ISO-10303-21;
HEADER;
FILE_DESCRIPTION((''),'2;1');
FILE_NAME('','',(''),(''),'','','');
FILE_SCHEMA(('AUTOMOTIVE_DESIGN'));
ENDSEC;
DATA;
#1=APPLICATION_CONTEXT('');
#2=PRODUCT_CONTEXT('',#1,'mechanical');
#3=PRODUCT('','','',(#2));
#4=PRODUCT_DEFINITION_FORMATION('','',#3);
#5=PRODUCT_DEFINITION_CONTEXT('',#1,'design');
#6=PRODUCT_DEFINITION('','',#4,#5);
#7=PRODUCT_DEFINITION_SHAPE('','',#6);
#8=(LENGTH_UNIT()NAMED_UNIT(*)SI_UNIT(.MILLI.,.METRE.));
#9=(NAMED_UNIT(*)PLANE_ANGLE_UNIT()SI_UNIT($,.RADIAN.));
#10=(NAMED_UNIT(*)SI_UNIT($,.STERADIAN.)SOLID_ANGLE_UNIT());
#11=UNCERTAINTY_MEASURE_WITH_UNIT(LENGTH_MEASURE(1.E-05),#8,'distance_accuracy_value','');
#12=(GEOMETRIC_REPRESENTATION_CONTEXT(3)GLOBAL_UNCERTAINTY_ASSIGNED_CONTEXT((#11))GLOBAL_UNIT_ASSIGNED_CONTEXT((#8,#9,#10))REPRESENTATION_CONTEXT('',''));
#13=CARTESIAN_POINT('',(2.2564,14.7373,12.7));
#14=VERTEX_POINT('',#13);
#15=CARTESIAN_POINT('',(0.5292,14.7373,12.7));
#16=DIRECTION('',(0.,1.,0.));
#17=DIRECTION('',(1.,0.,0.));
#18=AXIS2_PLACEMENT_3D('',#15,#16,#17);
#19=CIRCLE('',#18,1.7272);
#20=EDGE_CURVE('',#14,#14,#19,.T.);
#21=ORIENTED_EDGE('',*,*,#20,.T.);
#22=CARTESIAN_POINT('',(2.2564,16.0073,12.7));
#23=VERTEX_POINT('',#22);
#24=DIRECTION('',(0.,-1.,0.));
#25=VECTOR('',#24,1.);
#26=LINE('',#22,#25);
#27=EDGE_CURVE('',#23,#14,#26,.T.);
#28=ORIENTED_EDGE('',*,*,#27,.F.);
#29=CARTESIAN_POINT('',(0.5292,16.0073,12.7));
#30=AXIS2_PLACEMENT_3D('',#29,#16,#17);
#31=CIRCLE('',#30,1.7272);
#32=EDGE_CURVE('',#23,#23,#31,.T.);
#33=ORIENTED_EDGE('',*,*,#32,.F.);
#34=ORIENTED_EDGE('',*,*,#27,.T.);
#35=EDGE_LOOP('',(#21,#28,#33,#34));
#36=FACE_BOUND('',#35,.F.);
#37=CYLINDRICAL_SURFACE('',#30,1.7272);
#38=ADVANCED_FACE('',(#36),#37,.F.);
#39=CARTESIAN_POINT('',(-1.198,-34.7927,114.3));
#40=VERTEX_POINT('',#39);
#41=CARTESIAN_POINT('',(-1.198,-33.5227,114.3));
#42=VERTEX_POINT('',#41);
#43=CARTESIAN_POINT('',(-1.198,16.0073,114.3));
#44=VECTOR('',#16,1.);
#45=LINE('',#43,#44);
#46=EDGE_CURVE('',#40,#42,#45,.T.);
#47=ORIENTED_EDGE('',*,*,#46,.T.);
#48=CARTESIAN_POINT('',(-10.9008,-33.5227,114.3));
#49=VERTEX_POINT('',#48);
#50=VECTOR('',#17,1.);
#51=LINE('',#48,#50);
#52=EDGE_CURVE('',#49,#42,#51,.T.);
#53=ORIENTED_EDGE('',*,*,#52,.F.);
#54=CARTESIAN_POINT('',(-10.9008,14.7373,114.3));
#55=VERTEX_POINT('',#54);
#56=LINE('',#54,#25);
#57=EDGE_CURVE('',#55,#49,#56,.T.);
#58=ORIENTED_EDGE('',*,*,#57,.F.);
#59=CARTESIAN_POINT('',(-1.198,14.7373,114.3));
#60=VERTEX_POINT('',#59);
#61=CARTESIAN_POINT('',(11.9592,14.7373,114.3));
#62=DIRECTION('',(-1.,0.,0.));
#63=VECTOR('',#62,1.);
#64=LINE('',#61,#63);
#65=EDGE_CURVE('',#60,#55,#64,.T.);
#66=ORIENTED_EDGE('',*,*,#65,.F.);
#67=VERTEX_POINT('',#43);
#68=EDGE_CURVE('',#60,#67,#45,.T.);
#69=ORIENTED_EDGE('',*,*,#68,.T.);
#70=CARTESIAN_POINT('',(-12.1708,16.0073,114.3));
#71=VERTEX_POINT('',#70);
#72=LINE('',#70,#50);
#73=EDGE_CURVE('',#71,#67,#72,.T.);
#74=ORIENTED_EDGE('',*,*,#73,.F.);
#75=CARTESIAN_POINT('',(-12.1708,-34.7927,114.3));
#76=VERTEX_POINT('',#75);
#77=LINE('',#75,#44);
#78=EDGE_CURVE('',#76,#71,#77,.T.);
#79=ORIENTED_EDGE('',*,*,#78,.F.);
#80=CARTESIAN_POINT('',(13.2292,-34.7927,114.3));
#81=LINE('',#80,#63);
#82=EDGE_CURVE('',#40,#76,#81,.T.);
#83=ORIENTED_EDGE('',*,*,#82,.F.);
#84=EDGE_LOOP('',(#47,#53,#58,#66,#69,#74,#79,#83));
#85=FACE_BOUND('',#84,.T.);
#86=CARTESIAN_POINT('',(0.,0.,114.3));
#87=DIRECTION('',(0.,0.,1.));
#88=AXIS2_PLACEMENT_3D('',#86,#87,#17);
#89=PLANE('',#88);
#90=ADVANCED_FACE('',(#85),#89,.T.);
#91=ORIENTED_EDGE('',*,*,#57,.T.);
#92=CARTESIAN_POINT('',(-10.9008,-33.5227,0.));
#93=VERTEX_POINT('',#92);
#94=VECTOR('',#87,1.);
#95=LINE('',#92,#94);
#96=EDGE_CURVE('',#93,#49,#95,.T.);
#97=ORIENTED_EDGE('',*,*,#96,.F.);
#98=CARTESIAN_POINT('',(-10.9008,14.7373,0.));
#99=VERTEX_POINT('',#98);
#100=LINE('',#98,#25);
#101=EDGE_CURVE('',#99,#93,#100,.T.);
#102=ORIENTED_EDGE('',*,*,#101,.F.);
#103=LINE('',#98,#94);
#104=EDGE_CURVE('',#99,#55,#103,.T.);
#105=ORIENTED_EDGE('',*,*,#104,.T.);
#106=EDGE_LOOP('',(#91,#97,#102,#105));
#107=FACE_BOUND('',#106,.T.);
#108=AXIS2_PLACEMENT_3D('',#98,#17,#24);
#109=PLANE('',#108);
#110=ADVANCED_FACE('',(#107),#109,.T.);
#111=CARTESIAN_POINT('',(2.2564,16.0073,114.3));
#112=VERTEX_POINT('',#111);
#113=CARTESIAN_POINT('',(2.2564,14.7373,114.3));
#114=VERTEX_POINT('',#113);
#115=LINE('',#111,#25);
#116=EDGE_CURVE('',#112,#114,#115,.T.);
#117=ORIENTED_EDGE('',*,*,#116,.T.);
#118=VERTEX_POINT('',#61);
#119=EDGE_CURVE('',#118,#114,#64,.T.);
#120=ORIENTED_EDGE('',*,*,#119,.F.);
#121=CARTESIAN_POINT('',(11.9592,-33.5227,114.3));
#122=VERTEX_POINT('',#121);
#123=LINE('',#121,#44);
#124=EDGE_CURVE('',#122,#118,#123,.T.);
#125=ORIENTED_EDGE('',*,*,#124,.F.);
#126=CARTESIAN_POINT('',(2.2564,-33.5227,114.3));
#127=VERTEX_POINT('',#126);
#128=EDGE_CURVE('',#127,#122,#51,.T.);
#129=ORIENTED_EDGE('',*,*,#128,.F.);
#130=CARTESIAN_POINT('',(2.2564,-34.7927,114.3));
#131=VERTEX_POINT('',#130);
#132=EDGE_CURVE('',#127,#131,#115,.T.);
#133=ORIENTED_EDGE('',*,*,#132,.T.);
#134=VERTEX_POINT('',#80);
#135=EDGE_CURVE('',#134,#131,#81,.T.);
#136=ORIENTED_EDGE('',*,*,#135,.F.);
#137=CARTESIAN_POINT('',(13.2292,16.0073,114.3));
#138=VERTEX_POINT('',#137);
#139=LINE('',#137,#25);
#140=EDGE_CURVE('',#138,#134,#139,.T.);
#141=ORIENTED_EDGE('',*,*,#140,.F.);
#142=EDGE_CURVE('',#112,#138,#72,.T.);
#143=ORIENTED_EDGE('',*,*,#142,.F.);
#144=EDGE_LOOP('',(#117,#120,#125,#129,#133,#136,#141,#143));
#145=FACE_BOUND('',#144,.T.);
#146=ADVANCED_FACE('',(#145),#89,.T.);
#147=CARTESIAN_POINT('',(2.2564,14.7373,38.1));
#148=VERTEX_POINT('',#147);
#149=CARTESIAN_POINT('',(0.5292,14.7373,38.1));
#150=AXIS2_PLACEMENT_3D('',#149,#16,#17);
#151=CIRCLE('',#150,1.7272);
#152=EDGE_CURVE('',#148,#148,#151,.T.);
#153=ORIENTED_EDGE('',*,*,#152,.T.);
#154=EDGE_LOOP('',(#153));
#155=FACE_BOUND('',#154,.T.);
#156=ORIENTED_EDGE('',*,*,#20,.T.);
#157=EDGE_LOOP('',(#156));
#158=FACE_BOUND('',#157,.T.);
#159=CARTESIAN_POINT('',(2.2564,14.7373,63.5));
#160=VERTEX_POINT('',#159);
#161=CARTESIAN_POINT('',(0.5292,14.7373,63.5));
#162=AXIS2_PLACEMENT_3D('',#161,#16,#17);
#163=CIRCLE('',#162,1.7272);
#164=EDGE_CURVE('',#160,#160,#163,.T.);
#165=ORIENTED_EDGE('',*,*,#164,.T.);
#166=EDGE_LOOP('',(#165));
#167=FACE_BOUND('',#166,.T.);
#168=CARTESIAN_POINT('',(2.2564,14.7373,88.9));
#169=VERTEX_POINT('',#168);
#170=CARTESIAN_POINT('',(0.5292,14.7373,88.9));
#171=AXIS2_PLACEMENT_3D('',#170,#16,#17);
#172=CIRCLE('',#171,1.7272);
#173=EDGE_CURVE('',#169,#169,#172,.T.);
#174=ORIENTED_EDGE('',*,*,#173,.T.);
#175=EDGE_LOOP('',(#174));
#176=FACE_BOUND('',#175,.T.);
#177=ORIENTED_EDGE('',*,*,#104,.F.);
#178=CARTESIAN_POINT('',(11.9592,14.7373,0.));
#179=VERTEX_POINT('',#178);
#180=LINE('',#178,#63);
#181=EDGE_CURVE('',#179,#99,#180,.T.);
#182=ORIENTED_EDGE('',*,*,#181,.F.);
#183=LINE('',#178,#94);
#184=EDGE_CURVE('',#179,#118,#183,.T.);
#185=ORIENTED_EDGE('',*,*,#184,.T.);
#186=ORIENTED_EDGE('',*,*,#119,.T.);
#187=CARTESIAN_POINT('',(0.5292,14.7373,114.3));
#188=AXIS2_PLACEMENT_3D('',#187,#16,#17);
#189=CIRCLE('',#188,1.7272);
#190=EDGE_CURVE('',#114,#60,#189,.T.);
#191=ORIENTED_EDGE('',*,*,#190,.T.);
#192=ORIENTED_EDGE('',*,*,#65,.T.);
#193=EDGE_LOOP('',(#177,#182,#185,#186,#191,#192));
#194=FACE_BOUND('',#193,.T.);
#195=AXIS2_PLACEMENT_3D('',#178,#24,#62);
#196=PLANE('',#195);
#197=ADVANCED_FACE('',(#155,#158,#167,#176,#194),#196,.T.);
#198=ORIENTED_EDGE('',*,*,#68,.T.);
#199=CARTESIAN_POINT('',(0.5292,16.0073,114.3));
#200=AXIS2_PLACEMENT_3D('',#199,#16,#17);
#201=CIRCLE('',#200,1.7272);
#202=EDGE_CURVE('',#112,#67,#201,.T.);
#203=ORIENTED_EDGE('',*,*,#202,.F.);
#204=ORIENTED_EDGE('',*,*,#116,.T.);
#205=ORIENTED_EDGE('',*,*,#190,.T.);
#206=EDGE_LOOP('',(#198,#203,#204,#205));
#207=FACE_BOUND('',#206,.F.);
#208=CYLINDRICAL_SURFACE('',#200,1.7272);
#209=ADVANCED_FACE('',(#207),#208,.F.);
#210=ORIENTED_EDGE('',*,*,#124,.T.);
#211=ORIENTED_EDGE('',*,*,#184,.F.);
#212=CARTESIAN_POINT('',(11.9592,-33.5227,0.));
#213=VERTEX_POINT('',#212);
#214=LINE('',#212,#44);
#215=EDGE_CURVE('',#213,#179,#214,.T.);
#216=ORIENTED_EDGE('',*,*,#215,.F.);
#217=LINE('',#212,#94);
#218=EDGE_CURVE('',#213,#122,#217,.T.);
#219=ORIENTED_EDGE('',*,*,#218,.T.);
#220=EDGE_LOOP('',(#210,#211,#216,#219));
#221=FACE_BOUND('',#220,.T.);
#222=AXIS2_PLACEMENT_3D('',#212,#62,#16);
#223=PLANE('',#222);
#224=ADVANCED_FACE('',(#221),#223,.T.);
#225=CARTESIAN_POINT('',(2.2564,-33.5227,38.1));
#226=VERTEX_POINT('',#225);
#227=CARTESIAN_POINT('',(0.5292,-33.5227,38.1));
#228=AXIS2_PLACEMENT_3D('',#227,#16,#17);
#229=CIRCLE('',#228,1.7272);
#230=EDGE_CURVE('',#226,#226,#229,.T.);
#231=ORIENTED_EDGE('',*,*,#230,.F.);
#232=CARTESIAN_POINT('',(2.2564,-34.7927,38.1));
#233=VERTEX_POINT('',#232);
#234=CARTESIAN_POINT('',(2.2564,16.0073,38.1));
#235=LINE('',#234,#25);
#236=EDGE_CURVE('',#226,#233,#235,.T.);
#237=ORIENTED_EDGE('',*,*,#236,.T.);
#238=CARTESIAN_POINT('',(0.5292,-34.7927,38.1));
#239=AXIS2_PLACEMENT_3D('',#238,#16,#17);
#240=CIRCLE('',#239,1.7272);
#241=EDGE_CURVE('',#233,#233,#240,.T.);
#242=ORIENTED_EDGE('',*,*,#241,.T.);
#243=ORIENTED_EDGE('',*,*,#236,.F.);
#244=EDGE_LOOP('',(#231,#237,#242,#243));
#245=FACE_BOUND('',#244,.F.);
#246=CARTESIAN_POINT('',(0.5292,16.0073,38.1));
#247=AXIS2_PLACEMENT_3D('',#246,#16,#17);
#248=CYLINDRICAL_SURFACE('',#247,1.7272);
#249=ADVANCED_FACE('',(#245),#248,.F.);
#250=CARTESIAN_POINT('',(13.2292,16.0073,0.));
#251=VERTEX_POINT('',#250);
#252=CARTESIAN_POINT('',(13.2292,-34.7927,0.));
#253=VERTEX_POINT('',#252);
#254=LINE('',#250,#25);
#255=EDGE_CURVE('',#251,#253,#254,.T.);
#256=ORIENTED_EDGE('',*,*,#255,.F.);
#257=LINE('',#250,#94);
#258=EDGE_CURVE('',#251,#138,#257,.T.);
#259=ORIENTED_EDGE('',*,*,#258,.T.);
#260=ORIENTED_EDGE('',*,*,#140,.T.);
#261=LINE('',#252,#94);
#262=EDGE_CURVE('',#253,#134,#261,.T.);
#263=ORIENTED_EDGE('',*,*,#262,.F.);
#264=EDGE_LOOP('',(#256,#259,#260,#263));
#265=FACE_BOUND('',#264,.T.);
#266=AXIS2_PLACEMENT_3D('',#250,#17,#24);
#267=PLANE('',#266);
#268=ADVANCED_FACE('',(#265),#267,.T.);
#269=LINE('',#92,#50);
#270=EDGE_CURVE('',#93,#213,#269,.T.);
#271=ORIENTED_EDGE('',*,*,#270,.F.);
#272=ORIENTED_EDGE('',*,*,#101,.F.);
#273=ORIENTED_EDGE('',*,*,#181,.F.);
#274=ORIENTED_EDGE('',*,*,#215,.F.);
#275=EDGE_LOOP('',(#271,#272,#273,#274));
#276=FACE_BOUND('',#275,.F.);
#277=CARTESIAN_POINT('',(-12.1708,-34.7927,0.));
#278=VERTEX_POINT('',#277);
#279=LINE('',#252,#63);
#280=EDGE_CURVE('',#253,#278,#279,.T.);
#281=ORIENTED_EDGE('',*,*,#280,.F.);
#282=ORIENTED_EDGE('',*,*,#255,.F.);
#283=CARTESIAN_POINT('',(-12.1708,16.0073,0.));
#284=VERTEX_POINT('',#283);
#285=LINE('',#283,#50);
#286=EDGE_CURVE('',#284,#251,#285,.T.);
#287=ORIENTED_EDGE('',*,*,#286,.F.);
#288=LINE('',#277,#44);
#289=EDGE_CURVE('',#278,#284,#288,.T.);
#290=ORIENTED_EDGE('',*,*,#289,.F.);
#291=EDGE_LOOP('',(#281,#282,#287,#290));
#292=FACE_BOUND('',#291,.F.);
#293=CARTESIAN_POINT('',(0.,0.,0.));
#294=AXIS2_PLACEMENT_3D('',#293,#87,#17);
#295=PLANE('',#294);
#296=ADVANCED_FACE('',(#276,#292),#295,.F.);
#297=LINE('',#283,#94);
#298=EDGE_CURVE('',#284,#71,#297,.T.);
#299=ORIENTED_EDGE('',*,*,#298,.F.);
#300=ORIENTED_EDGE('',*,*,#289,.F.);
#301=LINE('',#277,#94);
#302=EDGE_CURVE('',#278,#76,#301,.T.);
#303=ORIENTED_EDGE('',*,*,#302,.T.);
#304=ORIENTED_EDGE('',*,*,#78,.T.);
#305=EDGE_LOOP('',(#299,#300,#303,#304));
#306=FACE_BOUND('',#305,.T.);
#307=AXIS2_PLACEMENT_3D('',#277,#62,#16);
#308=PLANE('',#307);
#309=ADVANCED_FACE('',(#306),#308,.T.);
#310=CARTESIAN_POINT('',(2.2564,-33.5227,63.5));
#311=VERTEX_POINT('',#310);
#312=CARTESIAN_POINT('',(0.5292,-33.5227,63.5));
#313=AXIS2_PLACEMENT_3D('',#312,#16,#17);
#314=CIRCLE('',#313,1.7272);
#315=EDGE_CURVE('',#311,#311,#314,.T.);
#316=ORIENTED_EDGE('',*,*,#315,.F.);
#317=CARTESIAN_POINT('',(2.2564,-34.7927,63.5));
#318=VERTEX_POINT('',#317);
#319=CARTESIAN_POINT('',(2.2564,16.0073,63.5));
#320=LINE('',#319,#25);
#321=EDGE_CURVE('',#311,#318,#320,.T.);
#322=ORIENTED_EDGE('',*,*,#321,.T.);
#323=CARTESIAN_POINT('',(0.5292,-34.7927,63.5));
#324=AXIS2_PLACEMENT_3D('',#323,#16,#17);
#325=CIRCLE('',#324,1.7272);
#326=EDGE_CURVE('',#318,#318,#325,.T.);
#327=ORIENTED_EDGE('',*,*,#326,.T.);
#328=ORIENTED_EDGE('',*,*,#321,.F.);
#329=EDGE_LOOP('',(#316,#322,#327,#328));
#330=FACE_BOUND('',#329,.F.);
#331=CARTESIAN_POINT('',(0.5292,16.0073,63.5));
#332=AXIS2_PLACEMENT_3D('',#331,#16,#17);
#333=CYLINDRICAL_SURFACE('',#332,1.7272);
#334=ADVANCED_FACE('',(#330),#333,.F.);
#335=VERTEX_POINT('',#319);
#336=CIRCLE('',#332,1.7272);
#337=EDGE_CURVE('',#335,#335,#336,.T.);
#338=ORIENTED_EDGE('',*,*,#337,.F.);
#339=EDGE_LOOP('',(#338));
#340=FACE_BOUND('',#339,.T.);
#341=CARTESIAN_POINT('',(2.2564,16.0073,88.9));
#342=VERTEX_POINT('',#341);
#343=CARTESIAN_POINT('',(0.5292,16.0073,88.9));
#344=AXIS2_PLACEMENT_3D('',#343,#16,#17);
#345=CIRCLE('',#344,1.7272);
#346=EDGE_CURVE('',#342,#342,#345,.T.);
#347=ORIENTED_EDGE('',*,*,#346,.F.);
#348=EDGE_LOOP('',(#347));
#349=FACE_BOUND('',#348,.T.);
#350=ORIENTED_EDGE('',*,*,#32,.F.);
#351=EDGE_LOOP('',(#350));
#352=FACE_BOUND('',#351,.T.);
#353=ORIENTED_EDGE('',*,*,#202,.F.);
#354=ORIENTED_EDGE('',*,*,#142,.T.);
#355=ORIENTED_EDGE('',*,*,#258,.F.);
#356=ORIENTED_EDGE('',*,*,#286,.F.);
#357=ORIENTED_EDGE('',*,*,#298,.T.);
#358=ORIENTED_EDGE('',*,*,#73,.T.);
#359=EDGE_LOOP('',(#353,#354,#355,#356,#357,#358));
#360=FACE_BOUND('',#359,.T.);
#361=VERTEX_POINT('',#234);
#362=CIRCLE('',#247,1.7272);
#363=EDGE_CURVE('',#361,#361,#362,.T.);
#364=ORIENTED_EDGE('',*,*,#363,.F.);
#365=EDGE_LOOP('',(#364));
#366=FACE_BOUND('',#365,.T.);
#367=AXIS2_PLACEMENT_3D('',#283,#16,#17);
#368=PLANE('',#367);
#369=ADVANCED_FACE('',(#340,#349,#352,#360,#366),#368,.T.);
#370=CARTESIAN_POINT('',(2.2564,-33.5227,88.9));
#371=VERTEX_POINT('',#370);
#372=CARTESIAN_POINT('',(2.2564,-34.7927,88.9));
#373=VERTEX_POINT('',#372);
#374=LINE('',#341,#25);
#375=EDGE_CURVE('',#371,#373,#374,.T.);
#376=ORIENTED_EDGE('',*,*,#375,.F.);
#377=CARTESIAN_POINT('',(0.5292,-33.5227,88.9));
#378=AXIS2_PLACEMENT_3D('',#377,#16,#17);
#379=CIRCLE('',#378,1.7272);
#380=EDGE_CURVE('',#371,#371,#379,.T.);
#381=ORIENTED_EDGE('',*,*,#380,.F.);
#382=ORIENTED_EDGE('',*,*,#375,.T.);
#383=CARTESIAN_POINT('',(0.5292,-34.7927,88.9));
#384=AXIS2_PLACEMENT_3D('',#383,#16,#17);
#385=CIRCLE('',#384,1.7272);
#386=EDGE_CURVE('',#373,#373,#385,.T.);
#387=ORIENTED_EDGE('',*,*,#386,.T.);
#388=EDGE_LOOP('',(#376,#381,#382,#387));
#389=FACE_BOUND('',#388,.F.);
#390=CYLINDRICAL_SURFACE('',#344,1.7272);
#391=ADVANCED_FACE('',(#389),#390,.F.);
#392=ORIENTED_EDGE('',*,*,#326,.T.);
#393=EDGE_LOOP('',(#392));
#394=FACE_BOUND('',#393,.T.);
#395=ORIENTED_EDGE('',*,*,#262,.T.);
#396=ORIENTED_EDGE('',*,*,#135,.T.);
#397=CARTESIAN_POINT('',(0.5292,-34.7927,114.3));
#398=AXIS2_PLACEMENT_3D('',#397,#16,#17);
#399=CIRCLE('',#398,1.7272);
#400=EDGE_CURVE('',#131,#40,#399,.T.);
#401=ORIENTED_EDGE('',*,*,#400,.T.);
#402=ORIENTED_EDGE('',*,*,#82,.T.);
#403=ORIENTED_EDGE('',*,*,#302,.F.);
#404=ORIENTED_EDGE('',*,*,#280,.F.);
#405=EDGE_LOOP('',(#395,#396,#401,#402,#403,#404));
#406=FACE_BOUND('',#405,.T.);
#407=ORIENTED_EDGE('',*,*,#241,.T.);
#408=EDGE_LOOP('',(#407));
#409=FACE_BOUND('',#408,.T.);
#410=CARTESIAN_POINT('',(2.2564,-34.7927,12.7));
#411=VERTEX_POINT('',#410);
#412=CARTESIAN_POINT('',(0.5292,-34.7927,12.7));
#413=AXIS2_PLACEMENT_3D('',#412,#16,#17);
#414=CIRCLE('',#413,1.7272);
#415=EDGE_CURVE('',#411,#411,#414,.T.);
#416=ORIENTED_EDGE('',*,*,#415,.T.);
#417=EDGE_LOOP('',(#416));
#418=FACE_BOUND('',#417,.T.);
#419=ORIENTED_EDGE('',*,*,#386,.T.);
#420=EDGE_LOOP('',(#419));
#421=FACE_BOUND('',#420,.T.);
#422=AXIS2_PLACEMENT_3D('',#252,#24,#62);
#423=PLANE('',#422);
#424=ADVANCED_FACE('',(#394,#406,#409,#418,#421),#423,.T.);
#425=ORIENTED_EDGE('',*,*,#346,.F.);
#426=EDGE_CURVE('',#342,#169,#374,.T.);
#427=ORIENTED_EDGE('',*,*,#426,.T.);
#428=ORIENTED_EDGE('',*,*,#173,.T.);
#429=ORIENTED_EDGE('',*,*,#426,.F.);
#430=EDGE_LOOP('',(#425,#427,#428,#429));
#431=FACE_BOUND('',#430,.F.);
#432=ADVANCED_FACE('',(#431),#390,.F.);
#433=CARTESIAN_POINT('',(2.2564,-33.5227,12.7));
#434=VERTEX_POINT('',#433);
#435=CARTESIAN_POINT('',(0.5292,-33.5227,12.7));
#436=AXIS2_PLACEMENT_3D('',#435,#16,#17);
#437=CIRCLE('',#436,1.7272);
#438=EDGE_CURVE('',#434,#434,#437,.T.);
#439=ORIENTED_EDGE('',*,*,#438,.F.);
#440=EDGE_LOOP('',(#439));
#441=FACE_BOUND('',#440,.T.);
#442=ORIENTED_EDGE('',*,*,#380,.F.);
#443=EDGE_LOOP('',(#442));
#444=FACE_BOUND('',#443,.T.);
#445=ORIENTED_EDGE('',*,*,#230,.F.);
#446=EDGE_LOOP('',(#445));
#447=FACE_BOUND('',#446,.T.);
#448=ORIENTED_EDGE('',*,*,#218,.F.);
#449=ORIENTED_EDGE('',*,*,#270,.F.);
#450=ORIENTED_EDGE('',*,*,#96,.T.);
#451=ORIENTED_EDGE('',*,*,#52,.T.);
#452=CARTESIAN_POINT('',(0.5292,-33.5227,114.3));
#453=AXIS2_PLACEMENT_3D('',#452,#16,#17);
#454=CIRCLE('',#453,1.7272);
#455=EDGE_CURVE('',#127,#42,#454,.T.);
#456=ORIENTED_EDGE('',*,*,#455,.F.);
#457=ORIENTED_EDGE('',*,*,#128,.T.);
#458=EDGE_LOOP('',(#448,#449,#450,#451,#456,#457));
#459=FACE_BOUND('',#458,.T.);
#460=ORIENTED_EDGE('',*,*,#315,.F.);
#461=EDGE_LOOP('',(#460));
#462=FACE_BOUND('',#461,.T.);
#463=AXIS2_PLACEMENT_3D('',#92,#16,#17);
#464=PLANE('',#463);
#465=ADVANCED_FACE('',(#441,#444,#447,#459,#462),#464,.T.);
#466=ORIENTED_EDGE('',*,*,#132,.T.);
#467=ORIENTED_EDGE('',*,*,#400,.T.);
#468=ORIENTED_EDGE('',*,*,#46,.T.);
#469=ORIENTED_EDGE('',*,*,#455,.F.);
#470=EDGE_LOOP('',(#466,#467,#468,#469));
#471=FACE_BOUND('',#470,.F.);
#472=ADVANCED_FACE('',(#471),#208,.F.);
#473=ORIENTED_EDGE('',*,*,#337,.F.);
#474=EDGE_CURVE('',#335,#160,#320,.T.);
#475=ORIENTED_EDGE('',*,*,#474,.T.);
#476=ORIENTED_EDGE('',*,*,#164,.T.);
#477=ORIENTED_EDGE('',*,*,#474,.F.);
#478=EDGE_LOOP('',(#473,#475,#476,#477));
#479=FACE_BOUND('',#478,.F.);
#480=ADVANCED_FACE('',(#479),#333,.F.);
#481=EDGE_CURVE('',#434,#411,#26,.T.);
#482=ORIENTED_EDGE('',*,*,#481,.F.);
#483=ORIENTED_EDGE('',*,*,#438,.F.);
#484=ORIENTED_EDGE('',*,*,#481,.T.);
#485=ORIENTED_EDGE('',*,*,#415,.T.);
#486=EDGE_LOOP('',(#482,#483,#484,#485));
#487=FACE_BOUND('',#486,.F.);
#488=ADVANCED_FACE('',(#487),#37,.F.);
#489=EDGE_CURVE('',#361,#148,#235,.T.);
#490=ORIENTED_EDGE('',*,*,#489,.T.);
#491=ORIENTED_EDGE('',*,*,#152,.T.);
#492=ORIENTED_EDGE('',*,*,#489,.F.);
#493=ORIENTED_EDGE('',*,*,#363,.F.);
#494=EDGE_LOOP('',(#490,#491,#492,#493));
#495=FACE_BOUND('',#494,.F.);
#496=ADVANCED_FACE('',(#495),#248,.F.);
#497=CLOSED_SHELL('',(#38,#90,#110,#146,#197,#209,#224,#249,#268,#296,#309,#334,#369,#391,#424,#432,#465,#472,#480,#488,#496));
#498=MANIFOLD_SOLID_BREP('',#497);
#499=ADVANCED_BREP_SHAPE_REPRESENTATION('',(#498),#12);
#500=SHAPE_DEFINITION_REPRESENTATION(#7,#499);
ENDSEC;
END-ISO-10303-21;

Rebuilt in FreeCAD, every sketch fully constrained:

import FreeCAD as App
import Part
import Sketcher
from FreeCAD import Vector
Q = App.Units.Quantity

doc = App.newDocument("Part")
body = doc.addObject("PartDesign::Body", "Body")

sketch1 = body.newObject("Sketcher::SketchObject", "Sketch")
sketch1.AttachmentSupport = (doc.getObject("XY_Plane"), [""])
sketch1.MapMode = "FlatFace"
sketch1.addGeometry([
    Part.LineSegment(Vector(13.2292, 16.0073, 0), Vector(-12.1708, 16.0073, 0)),
    Part.LineSegment(Vector(-12.1708, 16.0073, 0), Vector(-12.1708, -34.7927, 0)),
    Part.LineSegment(Vector(-12.1708, -34.7927, 0), Vector(13.2292, -34.7927, 0)),
    Part.LineSegment(Vector(13.2292, -34.7927, 0), Vector(13.2292, 16.0073, 0)),
    Part.LineSegment(Vector(-10.9008, 14.7373, 0), Vector(11.9592, 14.7373, 0)),
    Part.LineSegment(Vector(11.9592, 14.7373, 0), Vector(11.9592, -33.5227, 0)),
    Part.LineSegment(Vector(11.9592, -33.5227, 0), Vector(-10.9008, -33.5227, 0)),
    Part.LineSegment(Vector(-10.9008, -33.5227, 0), Vector(-10.9008, 14.7373, 0)),
], False)
sketch1.addConstraint([
    Sketcher.Constraint("Coincident", 0, 2, 1, 1),
    Sketcher.Constraint("Coincident", 1, 2, 2, 1),
    Sketcher.Constraint("Coincident", 2, 2, 3, 1),
    Sketcher.Constraint("Coincident", 3, 2, 0, 1),
    Sketcher.Constraint("Coincident", 4, 2, 5, 1),
    Sketcher.Constraint("Coincident", 5, 2, 6, 1),
    Sketcher.Constraint("Coincident", 6, 2, 7, 1),
    Sketcher.Constraint("Coincident", 7, 2, 4, 1),
    Sketcher.Constraint("Horizontal", 0),
    Sketcher.Constraint("Vertical", 1),
    Sketcher.Constraint("Horizontal", 2),
    Sketcher.Constraint("Vertical", 3),
    Sketcher.Constraint("Horizontal", 4),
    Sketcher.Constraint("Vertical", 5),
    Sketcher.Constraint("Horizontal", 6),
    Sketcher.Constraint("Vertical", 7),
    Sketcher.Constraint("DistanceX", 0, 2, 0, 1, Q("1 in")),
    Sketcher.Constraint("DistanceY", 1, 2, 1, 1, Q("2 in")),
    Sketcher.Constraint("DistanceX", 4, 2, 3, 2, Q("0.05 in")),
    Sketcher.Constraint("DistanceY", 4, 2, 3, 2, Q("0.05 in")),
    Sketcher.Constraint("DistanceY", 2, 2, 5, 2, Q("0.05 in")),
    Sketcher.Constraint("DistanceX", 1, 2, 6, 2, Q("0.05 in")),
    Sketcher.Constraint("DistanceY", -1, 1, 0, 2, Q("0.6302 in")),
    Sketcher.Constraint("DistanceX", 0, 2, -1, 1, 12.1708),
])
pad1 = body.newObject("PartDesign::Pad", "Pad")
pad1.Profile = sketch1
pad1.Length = Q("4.5 in")

sketch2 = body.newObject("Sketcher::SketchObject", "Sketch001")
sketch2.AttachmentSupport = (doc.getObject("XZ_Plane"), [""])
sketch2.MapMode = "FlatFace"
sketch2.AttachmentOffset = App.Placement(Vector(0, 0, -0.6302087 * 25.4), App.Rotation())
sketch2.addGeometry(Part.Circle(Vector(0.5292, 12.7, 0), Vector(0, 0, 1), 1.7272), False)
sketch2.addConstraint([
    Sketcher.Constraint("Diameter", 0, Q("0.136 in")),
    Sketcher.Constraint("DistanceY", -1, 1, 0, 3, Q("0.5 in")),
    Sketcher.Constraint("DistanceX", -1, 1, 0, 3, 0.5292),
])
pocket1 = body.newObject("PartDesign::Pocket", "Pocket")
pocket1.Profile = sketch2
pocket1.Type = "ThroughAll"
pocket1.Reversed = True
doc.recompute()

linearpattern = body.newObject("PartDesign::LinearPattern", "LinearPattern")
linearpattern.Originals = [pocket1]
linearpattern.Direction = (doc.getObject("Z_Axis"), [""])
linearpattern.Mode = "offset"
linearpattern.Offset = Q("1 in")
linearpattern.Occurrences = 11
body.Tip = linearpattern

doc.recompute()
